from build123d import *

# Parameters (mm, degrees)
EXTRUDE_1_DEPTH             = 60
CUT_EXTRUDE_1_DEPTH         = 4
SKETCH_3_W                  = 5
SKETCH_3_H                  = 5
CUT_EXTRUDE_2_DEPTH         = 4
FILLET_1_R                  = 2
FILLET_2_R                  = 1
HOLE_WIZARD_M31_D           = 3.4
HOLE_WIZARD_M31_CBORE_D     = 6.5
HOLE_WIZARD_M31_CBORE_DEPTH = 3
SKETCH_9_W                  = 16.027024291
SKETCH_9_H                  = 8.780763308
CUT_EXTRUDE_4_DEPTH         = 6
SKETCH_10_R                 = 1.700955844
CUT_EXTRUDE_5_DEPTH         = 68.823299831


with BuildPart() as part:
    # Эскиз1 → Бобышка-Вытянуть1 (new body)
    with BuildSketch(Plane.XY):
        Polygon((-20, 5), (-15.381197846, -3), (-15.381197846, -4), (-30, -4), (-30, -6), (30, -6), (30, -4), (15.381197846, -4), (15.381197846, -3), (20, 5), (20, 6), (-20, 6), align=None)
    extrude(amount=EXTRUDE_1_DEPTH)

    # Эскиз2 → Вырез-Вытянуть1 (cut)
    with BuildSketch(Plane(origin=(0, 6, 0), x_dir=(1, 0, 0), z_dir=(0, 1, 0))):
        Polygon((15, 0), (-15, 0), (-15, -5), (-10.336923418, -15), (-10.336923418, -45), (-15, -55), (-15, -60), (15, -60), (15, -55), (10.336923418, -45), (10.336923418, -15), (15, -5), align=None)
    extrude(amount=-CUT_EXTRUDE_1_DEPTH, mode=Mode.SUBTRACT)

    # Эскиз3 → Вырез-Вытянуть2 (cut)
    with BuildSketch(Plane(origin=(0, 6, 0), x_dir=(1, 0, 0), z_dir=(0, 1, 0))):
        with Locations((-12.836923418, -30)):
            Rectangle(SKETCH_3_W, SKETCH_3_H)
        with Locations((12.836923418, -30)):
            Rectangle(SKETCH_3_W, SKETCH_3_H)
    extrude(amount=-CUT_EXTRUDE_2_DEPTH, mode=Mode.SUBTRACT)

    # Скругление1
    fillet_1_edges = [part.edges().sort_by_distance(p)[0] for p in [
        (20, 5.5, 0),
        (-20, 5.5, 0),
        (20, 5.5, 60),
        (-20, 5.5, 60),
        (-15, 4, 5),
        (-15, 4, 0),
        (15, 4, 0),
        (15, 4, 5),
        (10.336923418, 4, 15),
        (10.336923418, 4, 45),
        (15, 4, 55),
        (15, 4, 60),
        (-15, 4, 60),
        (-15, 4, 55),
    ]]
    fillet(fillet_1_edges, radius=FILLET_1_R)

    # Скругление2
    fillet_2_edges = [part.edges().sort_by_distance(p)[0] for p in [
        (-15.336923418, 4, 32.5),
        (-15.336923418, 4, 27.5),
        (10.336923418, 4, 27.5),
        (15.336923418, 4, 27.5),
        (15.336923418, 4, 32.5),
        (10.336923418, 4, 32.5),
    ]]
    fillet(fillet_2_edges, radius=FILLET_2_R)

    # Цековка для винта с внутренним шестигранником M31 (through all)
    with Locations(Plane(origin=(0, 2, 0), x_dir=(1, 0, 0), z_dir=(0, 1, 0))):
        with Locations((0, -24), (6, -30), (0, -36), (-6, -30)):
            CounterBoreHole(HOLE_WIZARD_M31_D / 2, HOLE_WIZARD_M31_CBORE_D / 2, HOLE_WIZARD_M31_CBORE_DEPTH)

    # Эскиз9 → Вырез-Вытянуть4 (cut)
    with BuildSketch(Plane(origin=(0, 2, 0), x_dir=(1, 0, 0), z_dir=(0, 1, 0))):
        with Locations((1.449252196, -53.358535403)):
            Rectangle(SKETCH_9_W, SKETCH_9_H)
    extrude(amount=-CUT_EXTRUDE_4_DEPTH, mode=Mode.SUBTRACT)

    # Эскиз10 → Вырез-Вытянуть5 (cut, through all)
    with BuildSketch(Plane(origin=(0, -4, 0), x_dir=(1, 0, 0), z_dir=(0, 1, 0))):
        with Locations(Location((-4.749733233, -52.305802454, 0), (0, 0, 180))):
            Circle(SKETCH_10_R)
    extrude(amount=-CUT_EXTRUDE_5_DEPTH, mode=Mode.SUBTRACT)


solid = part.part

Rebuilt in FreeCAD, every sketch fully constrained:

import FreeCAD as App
import Part
import Sketcher
Q = App.Units.Quantity


def edges_at(feature, points):
    """Names of the edges that pass closest to the given points."""
    edges = feature.Shape.Edges
    near = lambda p: min(range(len(edges)), key=lambda i: edges[i].distToShape(Part.Vertex(*p))[0])
    return sorted({f"Edge{near(p) + 1}" for p in points})


def add_polygon(sketch, points):
    """Adds a closed chain of lines whose ends are joined by coincident constraints."""
    first, n = sketch.GeometryCount, len(points)
    for a, b in zip(points, points[1:] + points[:1]):
        sketch.addGeometry(Part.LineSegment(App.Vector(*a, 0), App.Vector(*b, 0)), False)
    for i in range(n):
        sketch.addConstraint(Sketcher.Constraint("Coincident", first + i, 2, first + (i + 1) % n, 1))

doc = App.newDocument("Part")
body = doc.addObject("PartDesign::Body", "Body")

# Sketch on XY plane
sketch1 = body.newObject("Sketcher::SketchObject", "Sketch")
sketch1.AttachmentSupport = (doc.getObject("XY_Plane"), [""])
sketch1.MapMode = "FlatFace"
add_polygon(sketch1, [(-20, 5), (-15.4, -3), (-15.4, -4), (-30, -4), (-30, -6), (30, -6), (30, -4), (15.4, -4), (15.4, -3), (20, 5), (20, 6), (-20, 6)])  # lines 0-11
sketch1.addConstraint(Sketcher.Constraint("Vertical", 1))
sketch1.addConstraint(Sketcher.Constraint("Horizontal", 2))
sketch1.addConstraint(Sketcher.Constraint("Vertical", 3))
sketch1.addConstraint(Sketcher.Constraint("Horizontal", 4))
sketch1.addConstraint(Sketcher.Constraint("Vertical", 5))
sketch1.addConstraint(Sketcher.Constraint("Horizontal", 6))
sketch1.addConstraint(Sketcher.Constraint("Vertical", 7))
sketch1.addConstraint(Sketcher.Constraint("Vertical", 9))
sketch1.addConstraint(Sketcher.Constraint("Horizontal", 10))
sketch1.addConstraint(Sketcher.Constraint("Vertical", 11))
sketch1.addConstraint(Sketcher.Constraint("Symmetric", 2, 2, 5, 2, -2))
sketch1.addConstraint(Sketcher.Constraint("Symmetric", 0, 2, 7, 2, -2))
sketch1.addConstraint(Sketcher.Constraint("Symmetric", 8, 2, 11, 2, -2))
sketch1.addConstraint(Sketcher.Constraint("Equal", 7, 9))
sketch1.addConstraint(Sketcher.Constraint("DistanceX", 4, 1, 4, 2, Q("60 mm")))
sketch1.addConstraint(Sketcher.Constraint("DistanceX", 10, 2, 10, 1, Q("40 mm")))
sketch1.addConstraint(Sketcher.Constraint("DistanceY", 1, 2, 1, 1, Q("1 mm")))
sketch1.addConstraint(Sketcher.Constraint("DistanceY", 3, 2, 3, 1, Q("2 mm")))
sketch1.addConstraint(Sketcher.Constraint("Angle", 0, Q("-60 deg")))
sketch1.addConstraint(Sketcher.Constraint("DistanceY", 0, 2, -1, 1, Q("3 mm")))
sketch1.addConstraint(Sketcher.Constraint("DistanceY", -1, 1, 8, 2, Q("5 mm")))
pad1 = body.newObject("PartDesign::Pad", "Pad")
pad1.Profile = sketch1
pad1.Length = 60

# Sketch on XZ plane
sketch2 = body.newObject("Sketcher::SketchObject", "Sketch001")
sketch2.AttachmentSupport = (doc.getObject("XZ_Plane"), [""])
sketch2.MapMode = "FlatFace"
sketch2.AttachmentOffset = App.Placement(App.Vector(0, 0, -6), App.Rotation())
add_polygon(sketch2, [(15, 0), (-15, 0), (-15, 5), (-10, 15), (-10, 45), (-15, 55), (-15, 60), (15, 60), (15, 55), (10, 45), (10, 15), (15, 5)])  # lines 0-11
sketch2.addConstraint(Sketcher.Constraint("Horizontal", 0))
sketch2.addConstraint(Sketcher.Constraint("Vertical", 1))
sketch2.addConstraint(Sketcher.Constraint("Vertical", 3))
sketch2.addConstraint(Sketcher.Constraint("Vertical", 5))
sketch2.addConstraint(Sketcher.Constraint("Horizontal", 6))
sketch2.addConstraint(Sketcher.Constraint("Vertical", 7))
sketch2.addConstraint(Sketcher.Constraint("Vertical", 9))
sketch2.addConstraint(Sketcher.Constraint("Vertical", 11))
sketch2.addConstraint(Sketcher.Constraint("Symmetric", 0, 2, 11, 2, -1, 1))
sketch2.addConstraint(Sketcher.Constraint("Symmetric", 4, 2, 7, 2, -2))
sketch2.addConstraint(Sketcher.Constraint("Symmetric", 3, 2, 8, 2, -2))
sketch2.addConstraint(Sketcher.Constraint("Parallel", 2, 8))
sketch2.addConstraint(Sketcher.Constraint("Parallel", 4, 10))
sketch2.addConstraint(Sketcher.Constraint("Horizontal", 2, 2, 9, 2))
sketch2.addConstraint(Sketcher.Constraint("Vertical", 1, 2, 4, 2))
sketch2.addConstraint(Sketcher.Constraint("Equal", 6, 3))
sketch2.addConstraint(Sketcher.Constraint("Equal", 1, 5))
sketch2.addConstraint(Sketcher.Constraint("DistanceX", 0, 2, 0, 1, Q("30 mm")))
sketch2.addConstraint(Sketcher.Constraint("DistanceY", 1, 1, 1, 2, Q("5 mm")))
sketch2.addConstraint(Sketcher.Constraint("Angle", 2, Q("65 deg")))
sketch2.addConstraint(Sketcher.Constraint("DistanceY", -1, 1, 2, 2, Q("15 mm")))
pocket1 = body.newObject("PartDesign::Pocket", "Pocket")
pocket1.Profile = sketch2
pocket1.Length = 4
pocket1.Reversed = True

# Sketch on XZ plane
sketch3 = body.newObject("Sketcher::SketchObject", "Sketch002")
sketch3.AttachmentSupport = (doc.getObject("XZ_Plane"), [""])
sketch3.MapMode = "FlatFace"
sketch3.AttachmentOffset = App.Placement(App.Vector(0, 0, -6), App.Rotation())
add_polygon(sketch3, [(-15, 28), (-15, 32), (-10, 32), (-10, 28)])  # lines 0-3
add_polygon(sketch3, [(10, 28), (10, 32), (15, 32), (15, 28)])  # lines 4-7
sketch3.addConstraint(Sketcher.Constraint("Vertical", 0))
sketch3.addConstraint(Sketcher.Constraint("Horizontal", 1))
sketch3.addConstraint(Sketcher.Constraint("Vertical", 2))
sketch3.addConstraint(Sketcher.Constraint("Horizontal", 3))
sketch3.addConstraint(Sketcher.Constraint("Vertical", 4))
sketch3.addConstraint(Sketcher.Constraint("Horizontal", 5))
sketch3.addConstraint(Sketcher.Constraint("Vertical", 6))
sketch3.addConstraint(Sketcher.Constraint("Horizontal", 7))
sketch3.addConstraint(Sketcher.Constraint("Symmetric", 1, 2, 4, 2, -2))
sketch3.addConstraint(Sketcher.Constraint("Symmetric", 3, 2, 6, 2, -2))
sketch3.addConstraint(Sketcher.Constraint("Equal", 7, 0))
sketch3.addConstraint(Sketcher.Constraint("DistanceX", 1, 1, 1, 2, Q("5 mm")))
sketch3.addConstraint(Sketcher.Constraint("DistanceY", -1, 1, 0, 2, Q("32.5 mm")))
sketch3.addConstraint(Sketcher.Constraint("DistanceX", 0, 2, -1, 1, Q("15.336923 mm")))
pocket2 = body.newObject("PartDesign::Pocket", "Pocket001")
pocket2.Profile = sketch3
pocket2.Length = 4
pocket2.Reversed = True
doc.recompute()

fillet = body.newObject("PartDesign::Fillet", "Fillet")
fillet.Base = (pocket2, edges_at(pocket2, [
    (20, 5.5, 0),
    (-20, 5.5, 0),
    (20, 5.5, 60),
    (-20, 5.5, 60),
    (-15, 4, 5),
    (-15, 4, 0),
    (15, 4, 0),
    (15, 4, 5),
    (10.337, 4, 15),
    (10.337, 4, 45),
    (15, 4, 55),
    (15, 4, 60),
    (-15, 4, 60),
    (-15, 4, 55),
]))
fillet.Radius = 2
doc.recompute()

fillet2 = body.newObject("PartDesign::Fillet", "Fillet001")
fillet2.Base = (fillet, edges_at(fillet, [
    (-15.337, 4, 32.5),
    (-15.337, 4, 27.5),
    (10.337, 4, 27.5),
    (15.337, 4, 27.5),
    (15.337, 4, 32.5),
    (10.337, 4, 32.5),
]))
fillet2.Radius = 1

# Sketch on XZ plane
sketch4 = body.newObject("Sketcher::SketchObject", "Sketch003")
sketch4.AttachmentSupport = (doc.getObject("XZ_Plane"), [""])
sketch4.MapMode = "FlatFace"
sketch4.AttachmentOffset = App.Placement(App.Vector(0, 0, -2), App.Rotation())
sketch4.addGeometry(Part.Circle(App.Vector(0, 24, 0), App.Vector(0, 0, 1), 1.7), False)
sketch4.addGeometry(Part.Circle(App.Vector(6, 30, 0), App.Vector(0, 0, 1), 1.7), False)
sketch4.addGeometry(Part.Circle(App.Vector(0, 36, 0), App.Vector(0, 0, 1), 1.7), False)
sketch4.addGeometry(Part.Circle(App.Vector(-6, 30, 0), App.Vector(0, 0, 1), 1.7), False)
sketch4.addConstraint(Sketcher.Constraint("Equal", 0, 1))
sketch4.addConstraint(Sketcher.Constraint("Equal", 1, 2))
sketch4.addConstraint(Sketcher.Constraint("Equal", 2, 3))
sketch4.addConstraint(Sketcher.Constraint("Symmetric", 1, 3, 3, 3, -2))
sketch4.addConstraint(Sketcher.Constraint("PointOnObject", 0, 3, -2))
sketch4.addConstraint(Sketcher.Constraint("PointOnObject", 2, 3, -2))
sketch4.addConstraint(Sketcher.Constraint("Diameter", 0, Q("3.4 mm")))
sketch4.addConstraint(Sketcher.Constraint("DistanceY", -1, 1, 0, 3, Q("24 mm")))
sketch4.addConstraint(Sketcher.Constraint("DistanceX", -1, 1, 1, 3, Q("6 mm")))
sketch4.addConstraint(Sketcher.Constraint("DistanceY", -1, 1, 1, 3, Q("30 mm")))
sketch4.addConstraint(Sketcher.Constraint("DistanceY", -1, 1, 2, 3, Q("36 mm")))
doc.recompute()
hole = body.newObject("PartDesign::Hole", "Hole")
hole.Profile = sketch4
hole.ThreadType = "None"
hole.Diameter = 3.4
hole.DepthType = "ThroughAll"
hole.HoleCutType = "Counterbore"
hole.HoleCutDiameter = 6.5
hole.HoleCutDepth = 3
hole.Reversed = True

# Sketch on XZ plane
sketch5 = body.newObject("Sketcher::SketchObject", "Sketch004")
sketch5.AttachmentSupport = (doc.getObject("XZ_Plane"), [""])
sketch5.MapMode = "FlatFace"
sketch5.AttachmentOffset = App.Placement(App.Vector(0, 0, -2), App.Rotation())
add_polygon(sketch5, [(-7, 49), (-7, 58), (9, 58), (9, 49)])  # lines 0-3
sketch5.addConstraint(Sketcher.Constraint("Vertical", 0))
sketch5.addConstraint(Sketcher.Constraint("Horizontal", 1))
sketch5.addConstraint(Sketcher.Constraint("Vertical", 2))
sketch5.addConstraint(Sketcher.Constraint("Horizontal", 3))
sketch5.addConstraint(Sketcher.Constraint("DistanceX", 1, 1, 1, 2, Q("16.027024 mm")))
sketch5.addConstraint(Sketcher.Constraint("DistanceY", 0, 1, 0, 2, Q("8.780763 mm")))
sketch5.addConstraint(Sketcher.Constraint("DistanceX", 0, 2, -1, 1, Q("6.56426 mm")))
sketch5.addConstraint(Sketcher.Constraint("DistanceY", -1, 1, 0, 2, Q("57.748917 mm")))
pocket3 = body.newObject("PartDesign::Pocket", "Pocket002")
pocket3.Profile = sketch5
pocket3.Length = 6
pocket3.Reversed = True

# Sketch on XZ plane
sketch6 = body.newObject("Sketcher::SketchObject", "Sketch005")
sketch6.AttachmentSupport = (doc.getObject("XZ_Plane"), [""])
sketch6.MapMode = "FlatFace"
sketch6.AttachmentOffset = App.Placement(App.Vector(0, 0, 4), App.Rotation())
sketch6.addGeometry(Part.Circle(App.Vector(-4.7, 52.3, 0), App.Vector(0, 0, 1), 1.7), False)
sketch6.addConstraint(Sketcher.Constraint("Diameter", 0, Q("3.401912 mm")))
sketch6.addConstraint(Sketcher.Constraint("DistanceX", 0, 3, -1, 1, Q("4.749733 mm")))
sketch6.addConstraint(Sketcher.Constraint("DistanceY", -1, 1, 0, 3, Q("52.305802 mm")))
pocket4 = body.newObject("PartDesign::Pocket", "Pocket003")
pocket4.Profile = sketch6
pocket4.Type = "ThroughAll"
pocket4.Reversed = True

doc.recompute()
